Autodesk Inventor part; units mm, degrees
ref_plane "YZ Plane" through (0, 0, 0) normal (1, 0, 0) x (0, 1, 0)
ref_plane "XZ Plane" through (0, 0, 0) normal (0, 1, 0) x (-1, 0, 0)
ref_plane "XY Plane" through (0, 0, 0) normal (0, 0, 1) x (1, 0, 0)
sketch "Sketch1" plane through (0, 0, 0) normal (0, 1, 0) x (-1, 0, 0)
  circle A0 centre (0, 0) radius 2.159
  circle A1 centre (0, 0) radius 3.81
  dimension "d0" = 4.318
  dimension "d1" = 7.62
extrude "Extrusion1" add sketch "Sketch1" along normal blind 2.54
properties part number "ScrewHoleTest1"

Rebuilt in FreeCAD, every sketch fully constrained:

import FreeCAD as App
import Part
import Sketcher
from FreeCAD import Vector
Q = App.Units.Quantity

doc = App.newDocument("Part")
body = doc.addObject("PartDesign::Body", "Body")

sketch1 = body.newObject("Sketcher::SketchObject", "Sketch")
sketch1.AttachmentSupport = (doc.getObject("XZ_Plane"), [""])
sketch1.MapMode = "FlatFace"
sketch1.addGeometry([
    Part.Circle(Vector(0, 0, 0), Vector(0, 0, 1), 3.8),
    Part.Circle(Vector(0, 0, 0), Vector(0, 0, 1), 2.2),
], False)
sketch1.addConstraint([
    Sketcher.Constraint("Coincident", 0, 3, -1, 1),
    Sketcher.Constraint("Coincident", 1, 3, -1, 1),
    Sketcher.Constraint("Diameter", 0, Q("0.3 in")),
    Sketcher.Constraint("Diameter", 1, Q("0.17 in")),
])
pad1 = body.newObject("PartDesign::Pad", "Pad")
pad1.Profile = sketch1
pad1.Length = Q("0.1 in")
pad1.Reversed = True

doc.recompute()
